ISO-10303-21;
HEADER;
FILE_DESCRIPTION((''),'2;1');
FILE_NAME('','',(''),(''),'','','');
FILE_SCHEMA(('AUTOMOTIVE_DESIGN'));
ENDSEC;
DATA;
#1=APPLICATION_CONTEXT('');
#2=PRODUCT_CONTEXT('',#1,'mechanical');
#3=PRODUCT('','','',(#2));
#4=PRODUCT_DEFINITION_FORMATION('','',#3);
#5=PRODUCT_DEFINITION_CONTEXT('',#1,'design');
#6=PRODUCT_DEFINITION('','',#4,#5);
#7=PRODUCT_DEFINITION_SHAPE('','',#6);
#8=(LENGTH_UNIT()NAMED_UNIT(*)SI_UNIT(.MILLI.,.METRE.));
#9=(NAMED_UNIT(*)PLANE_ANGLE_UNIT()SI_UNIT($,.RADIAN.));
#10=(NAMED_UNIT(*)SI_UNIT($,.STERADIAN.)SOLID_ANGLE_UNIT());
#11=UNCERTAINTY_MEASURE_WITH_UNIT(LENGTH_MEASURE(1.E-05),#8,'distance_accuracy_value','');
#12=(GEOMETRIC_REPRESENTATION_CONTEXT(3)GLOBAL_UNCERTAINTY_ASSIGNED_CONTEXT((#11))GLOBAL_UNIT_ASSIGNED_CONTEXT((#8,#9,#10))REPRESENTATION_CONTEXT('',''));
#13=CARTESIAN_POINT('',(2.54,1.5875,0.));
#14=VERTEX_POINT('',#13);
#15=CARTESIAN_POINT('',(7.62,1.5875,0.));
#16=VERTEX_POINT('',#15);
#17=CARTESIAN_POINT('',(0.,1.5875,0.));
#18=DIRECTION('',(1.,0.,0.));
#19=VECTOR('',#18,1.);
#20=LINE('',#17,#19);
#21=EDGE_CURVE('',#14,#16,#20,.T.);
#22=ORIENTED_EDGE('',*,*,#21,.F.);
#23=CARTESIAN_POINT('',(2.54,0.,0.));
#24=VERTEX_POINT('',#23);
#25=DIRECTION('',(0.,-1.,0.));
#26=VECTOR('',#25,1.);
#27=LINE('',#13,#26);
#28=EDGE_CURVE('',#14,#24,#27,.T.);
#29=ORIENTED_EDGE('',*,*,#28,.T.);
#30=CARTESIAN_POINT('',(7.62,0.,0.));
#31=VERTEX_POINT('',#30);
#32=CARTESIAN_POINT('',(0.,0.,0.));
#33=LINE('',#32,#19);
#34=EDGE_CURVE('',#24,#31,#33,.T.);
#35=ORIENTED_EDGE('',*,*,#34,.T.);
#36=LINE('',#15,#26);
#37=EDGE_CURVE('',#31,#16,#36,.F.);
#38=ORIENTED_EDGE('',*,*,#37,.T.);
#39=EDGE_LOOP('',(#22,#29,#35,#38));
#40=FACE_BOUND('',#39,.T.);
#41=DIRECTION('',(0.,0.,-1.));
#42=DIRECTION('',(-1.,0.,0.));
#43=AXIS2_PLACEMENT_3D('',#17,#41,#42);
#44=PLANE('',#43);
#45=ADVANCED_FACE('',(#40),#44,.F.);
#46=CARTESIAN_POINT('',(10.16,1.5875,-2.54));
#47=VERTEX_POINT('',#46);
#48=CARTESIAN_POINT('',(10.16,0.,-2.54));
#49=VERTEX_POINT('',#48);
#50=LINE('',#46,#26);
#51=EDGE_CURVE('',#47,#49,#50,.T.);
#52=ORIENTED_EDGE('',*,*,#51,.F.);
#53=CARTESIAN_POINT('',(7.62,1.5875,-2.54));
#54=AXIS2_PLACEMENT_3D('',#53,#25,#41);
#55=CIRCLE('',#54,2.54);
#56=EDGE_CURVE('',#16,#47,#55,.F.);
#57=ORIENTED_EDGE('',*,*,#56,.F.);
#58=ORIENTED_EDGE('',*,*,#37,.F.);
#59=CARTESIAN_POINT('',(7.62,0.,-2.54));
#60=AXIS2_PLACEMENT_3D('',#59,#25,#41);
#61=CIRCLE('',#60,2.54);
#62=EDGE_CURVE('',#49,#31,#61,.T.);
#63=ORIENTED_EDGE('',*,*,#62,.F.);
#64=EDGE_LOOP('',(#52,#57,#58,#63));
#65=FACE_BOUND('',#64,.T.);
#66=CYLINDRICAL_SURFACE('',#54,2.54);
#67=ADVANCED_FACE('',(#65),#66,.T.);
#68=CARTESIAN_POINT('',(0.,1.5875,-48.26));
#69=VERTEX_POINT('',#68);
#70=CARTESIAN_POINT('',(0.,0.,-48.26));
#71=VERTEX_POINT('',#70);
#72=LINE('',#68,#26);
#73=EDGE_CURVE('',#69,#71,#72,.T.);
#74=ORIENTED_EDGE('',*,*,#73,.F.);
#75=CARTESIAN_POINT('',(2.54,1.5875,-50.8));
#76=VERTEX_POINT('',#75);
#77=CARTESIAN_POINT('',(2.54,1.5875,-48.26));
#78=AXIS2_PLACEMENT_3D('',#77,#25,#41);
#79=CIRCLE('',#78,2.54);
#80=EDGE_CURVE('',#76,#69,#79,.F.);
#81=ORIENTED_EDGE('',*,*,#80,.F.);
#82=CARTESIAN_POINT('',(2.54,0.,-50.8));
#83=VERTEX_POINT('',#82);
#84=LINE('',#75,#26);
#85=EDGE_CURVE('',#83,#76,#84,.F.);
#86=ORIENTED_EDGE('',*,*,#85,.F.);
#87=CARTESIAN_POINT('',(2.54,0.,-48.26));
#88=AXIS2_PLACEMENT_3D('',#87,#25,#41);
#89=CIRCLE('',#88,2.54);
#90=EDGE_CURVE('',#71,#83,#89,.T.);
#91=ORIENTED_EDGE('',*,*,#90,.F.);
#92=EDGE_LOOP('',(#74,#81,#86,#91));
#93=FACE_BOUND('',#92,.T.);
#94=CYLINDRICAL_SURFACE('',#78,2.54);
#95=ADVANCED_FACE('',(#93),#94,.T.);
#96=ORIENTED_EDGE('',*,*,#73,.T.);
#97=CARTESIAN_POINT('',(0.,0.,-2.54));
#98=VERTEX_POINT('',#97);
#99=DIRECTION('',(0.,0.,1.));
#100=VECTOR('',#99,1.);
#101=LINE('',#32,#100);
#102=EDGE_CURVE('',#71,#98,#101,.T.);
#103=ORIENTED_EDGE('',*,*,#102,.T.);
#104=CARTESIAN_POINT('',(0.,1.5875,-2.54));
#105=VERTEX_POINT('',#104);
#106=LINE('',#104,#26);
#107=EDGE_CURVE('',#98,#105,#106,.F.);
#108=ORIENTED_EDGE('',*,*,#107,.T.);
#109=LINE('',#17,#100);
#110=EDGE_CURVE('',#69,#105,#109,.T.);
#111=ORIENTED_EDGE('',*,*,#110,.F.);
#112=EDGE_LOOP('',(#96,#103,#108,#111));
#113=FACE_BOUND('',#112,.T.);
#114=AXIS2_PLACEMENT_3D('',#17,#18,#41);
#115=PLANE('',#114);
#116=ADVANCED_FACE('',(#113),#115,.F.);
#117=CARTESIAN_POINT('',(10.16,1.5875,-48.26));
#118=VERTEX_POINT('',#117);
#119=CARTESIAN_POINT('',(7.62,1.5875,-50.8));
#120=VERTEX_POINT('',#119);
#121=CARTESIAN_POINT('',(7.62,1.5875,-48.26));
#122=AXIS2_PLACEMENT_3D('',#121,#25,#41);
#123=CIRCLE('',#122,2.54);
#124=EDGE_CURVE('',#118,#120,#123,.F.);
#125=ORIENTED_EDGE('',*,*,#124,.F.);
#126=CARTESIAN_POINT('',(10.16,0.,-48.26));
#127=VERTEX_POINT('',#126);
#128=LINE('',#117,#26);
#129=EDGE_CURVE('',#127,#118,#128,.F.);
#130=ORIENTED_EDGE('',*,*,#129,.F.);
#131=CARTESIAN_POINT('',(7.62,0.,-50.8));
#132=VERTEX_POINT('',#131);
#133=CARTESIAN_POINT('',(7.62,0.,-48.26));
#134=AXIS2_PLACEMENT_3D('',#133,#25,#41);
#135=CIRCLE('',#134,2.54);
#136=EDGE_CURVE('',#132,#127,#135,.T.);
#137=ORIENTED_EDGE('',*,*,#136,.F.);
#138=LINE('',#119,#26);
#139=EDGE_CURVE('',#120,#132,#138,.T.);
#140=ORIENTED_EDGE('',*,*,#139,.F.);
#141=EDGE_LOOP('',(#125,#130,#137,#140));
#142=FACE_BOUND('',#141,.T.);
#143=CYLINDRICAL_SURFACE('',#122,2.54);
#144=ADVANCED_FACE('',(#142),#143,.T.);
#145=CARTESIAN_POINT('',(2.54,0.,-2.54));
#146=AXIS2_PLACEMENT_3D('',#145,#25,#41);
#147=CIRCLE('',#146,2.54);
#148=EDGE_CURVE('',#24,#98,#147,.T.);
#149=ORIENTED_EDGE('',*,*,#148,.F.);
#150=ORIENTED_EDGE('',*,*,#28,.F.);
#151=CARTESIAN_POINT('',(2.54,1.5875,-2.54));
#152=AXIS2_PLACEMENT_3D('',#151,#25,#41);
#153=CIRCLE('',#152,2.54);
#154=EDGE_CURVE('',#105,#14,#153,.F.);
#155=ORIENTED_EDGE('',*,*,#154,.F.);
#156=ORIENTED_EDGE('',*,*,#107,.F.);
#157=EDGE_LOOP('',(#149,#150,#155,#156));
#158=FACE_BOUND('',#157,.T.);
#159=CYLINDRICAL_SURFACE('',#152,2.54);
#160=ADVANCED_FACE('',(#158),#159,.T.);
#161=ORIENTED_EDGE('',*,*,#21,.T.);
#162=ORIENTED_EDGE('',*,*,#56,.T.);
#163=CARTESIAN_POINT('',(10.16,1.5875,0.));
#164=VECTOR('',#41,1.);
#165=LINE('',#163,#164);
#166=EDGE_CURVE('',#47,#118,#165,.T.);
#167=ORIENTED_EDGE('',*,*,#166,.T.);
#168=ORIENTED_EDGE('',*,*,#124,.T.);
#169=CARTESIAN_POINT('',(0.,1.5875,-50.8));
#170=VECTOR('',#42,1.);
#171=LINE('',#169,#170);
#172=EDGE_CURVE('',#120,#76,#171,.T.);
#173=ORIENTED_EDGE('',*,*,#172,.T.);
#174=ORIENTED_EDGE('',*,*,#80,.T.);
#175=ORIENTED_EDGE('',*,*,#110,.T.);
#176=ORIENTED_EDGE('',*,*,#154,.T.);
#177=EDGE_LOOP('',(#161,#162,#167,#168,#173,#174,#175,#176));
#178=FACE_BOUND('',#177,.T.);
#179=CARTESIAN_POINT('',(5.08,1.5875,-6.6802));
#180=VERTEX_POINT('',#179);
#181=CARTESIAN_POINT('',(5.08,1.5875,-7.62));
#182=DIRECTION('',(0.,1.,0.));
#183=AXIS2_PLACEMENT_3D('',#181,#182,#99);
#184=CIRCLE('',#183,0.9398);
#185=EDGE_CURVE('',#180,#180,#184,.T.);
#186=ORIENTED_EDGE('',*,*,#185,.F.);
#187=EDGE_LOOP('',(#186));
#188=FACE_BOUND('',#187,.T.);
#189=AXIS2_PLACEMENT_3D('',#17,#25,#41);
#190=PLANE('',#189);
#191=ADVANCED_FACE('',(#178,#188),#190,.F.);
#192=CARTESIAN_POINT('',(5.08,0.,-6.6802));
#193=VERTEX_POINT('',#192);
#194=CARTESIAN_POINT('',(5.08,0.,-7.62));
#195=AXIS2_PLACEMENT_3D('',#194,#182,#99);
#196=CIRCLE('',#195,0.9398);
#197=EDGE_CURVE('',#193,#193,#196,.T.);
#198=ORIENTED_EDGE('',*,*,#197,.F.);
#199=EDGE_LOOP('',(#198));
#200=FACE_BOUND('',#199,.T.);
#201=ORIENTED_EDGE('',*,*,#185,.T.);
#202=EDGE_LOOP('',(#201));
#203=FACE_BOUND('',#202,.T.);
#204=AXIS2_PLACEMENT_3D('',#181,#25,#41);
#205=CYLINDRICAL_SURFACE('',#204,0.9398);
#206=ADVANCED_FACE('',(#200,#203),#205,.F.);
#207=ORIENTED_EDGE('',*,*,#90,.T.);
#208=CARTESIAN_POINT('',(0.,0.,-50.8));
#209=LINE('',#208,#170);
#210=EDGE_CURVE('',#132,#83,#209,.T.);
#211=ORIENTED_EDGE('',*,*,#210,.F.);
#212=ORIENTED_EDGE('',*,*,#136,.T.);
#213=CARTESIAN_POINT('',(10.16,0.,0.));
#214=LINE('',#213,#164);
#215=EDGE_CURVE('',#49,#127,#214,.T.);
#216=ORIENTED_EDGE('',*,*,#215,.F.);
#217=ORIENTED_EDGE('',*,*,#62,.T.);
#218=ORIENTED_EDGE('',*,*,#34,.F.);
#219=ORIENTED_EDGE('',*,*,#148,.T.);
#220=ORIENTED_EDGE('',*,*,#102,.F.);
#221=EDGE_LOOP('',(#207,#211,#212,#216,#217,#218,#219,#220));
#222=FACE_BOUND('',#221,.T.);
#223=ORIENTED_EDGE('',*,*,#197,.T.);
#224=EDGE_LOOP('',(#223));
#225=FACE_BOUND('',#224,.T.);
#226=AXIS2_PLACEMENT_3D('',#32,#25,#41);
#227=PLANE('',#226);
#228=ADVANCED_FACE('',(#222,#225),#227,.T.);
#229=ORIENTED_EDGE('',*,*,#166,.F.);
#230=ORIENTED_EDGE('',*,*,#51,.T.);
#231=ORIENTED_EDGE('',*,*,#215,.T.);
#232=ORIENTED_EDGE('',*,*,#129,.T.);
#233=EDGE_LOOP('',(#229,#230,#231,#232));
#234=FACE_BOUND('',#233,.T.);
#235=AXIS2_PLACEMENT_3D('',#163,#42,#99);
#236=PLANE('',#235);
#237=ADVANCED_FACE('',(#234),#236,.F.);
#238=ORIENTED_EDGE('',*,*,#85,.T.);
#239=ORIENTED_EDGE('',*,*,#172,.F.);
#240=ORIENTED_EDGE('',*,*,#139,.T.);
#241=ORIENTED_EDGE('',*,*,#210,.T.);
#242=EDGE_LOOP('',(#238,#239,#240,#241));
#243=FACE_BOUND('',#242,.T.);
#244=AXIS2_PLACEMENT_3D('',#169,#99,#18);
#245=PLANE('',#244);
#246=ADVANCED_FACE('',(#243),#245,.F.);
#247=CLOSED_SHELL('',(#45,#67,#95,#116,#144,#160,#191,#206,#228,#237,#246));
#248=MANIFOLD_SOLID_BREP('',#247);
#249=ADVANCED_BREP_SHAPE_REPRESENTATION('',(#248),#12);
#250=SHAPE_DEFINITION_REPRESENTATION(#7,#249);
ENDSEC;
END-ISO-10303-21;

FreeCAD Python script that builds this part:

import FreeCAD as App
import Part
import Sketcher
Q = App.Units.Quantity


def edges_at(feature, points):
    """Names of the edges that pass closest to the given points."""
    edges = feature.Shape.Edges
    near = lambda p: min(range(len(edges)), key=lambda i: edges[i].distToShape(Part.Vertex(*p))[0])
    return sorted({f"Edge{near(p) + 1}" for p in points})

doc = App.newDocument("Part")
body = doc.addObject("PartDesign::Body", "Body")

# Sketch on XZ plane
sketch1 = body.newObject("Sketcher::SketchObject", "Sketch")
sketch1.AttachmentSupport = (doc.getObject("XZ_Plane"), [""])
sketch1.MapMode = "FlatFace"
sketch1.addGeometry(Part.LineSegment(App.Vector(0, -50.8, 0), App.Vector(0, 0, 0)), False)
sketch1.addGeometry(Part.LineSegment(App.Vector(0, 0, 0), App.Vector(10.2, 0, 0)), False)
sketch1.addGeometry(Part.LineSegment(App.Vector(10.2, 0, 0), App.Vector(10.2, -50.8, 0)), False)
sketch1.addGeometry(Part.LineSegment(App.Vector(10.2, -50.8, 0), App.Vector(0, -50.8, 0)), False)
sketch1.addGeometry(Part.Circle(App.Vector(5.1, -7.6, 0), App.Vector(0, 0, 1), 0.9), False)
sketch1.addConstraint(Sketcher.Constraint("Coincident", 0, 2, 1, 1))
sketch1.addConstraint(Sketcher.Constraint("Coincident", 1, 2, 2, 1))
sketch1.addConstraint(Sketcher.Constraint("Coincident", 2, 2, 3, 1))
sketch1.addConstraint(Sketcher.Constraint("Coincident", 3, 2, 0, 1))
sketch1.addConstraint(Sketcher.Constraint("Vertical", 0))
sketch1.addConstraint(Sketcher.Constraint("Horizontal", 1))
sketch1.addConstraint(Sketcher.Constraint("Vertical", 2))
sketch1.addConstraint(Sketcher.Constraint("Horizontal", 3))
sketch1.addConstraint(Sketcher.Constraint("Coincident", 0, 2, -1, 1))
sketch1.addConstraint(Sketcher.Constraint("DistanceY", 0, 1, 0, 2, Q("2 in")))
sketch1.addConstraint(Sketcher.Constraint("Diameter", 4, Q("0.074 in")))
sketch1.addConstraint(Sketcher.Constraint("DistanceX", 1, 1, 1, 2, Q("0.4 in")))
sketch1.addConstraint(Sketcher.Constraint("DistanceX", -1, 1, 4, 3, Q("0.2 in")))
sketch1.addConstraint(Sketcher.Constraint("DistanceY", 4, 3, -1, 1, Q("0.3 in")))
pad1 = body.newObject("PartDesign::Pad", "Pad")
pad1.Profile = sketch1
pad1.Length = Q("0.0625 in")
pad1.Reversed = True
doc.recompute()

fillet = body.newObject("PartDesign::Fillet", "Fillet")
fillet.Base = (pad1, edges_at(pad1, [
    (0, 0.794, -50.8),
    (10.16, 0.794, -50.8),
    (10.16, 0.794, 0),
    (0, 0.794, 0),
]))
fillet.Radius = Q("0.1 in")

doc.recompute()
